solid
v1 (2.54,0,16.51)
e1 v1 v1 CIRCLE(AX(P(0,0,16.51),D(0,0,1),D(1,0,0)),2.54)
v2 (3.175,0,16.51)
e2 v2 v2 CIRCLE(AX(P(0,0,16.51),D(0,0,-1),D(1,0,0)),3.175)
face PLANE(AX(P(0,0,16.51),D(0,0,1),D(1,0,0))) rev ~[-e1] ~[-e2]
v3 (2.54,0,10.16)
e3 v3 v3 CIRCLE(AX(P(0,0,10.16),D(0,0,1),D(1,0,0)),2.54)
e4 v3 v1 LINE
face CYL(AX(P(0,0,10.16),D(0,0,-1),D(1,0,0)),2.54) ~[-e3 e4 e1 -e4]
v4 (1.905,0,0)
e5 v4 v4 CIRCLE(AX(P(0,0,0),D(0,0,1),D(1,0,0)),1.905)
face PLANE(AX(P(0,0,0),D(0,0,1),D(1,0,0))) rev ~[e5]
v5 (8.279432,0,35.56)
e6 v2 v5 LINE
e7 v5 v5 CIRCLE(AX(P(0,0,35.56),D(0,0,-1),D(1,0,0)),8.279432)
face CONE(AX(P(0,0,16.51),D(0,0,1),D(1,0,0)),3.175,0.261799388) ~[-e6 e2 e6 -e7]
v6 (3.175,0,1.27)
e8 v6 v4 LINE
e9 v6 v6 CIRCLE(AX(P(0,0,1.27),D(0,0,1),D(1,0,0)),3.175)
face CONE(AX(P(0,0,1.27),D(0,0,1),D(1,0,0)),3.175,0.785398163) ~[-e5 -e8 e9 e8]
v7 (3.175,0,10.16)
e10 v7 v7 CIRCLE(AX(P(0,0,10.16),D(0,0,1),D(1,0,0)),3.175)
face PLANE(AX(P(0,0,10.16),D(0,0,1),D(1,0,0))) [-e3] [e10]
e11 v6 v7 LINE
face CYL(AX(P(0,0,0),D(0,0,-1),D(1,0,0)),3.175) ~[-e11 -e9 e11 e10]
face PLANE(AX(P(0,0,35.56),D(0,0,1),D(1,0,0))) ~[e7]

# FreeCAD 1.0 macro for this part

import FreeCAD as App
import Part
import Sketcher
from FreeCAD import Vector
Q = App.Units.Quantity


def edges_at(feature, points):
    """Names of the edges that pass closest to the given points."""
    edges = feature.Shape.Edges
    near = lambda p: min(range(len(edges)), key=lambda i: edges[i].distToShape(Part.Vertex(*p))[0])
    return sorted({f"Edge{near(p) + 1}" for p in points})

doc = App.newDocument("Part")
body = doc.addObject("PartDesign::Body", "Body")

# Sketch on XY plane
sketch1 = body.newObject("Sketcher::SketchObject", "Sketch")
sketch1.AttachmentSupport = (doc.getObject("XY_Plane"), [""])
sketch1.MapMode = "FlatFace"
sketch1.addGeometry(Part.Circle(Vector(0, 0, 0), Vector(0, 0, 1), 3.2), False)
sketch1.addConstraint([
    Sketcher.Constraint("Coincident", 0, 3, -1, 1),
    Sketcher.Constraint("Diameter", 0, Q("0.25 in")),
])
pad1 = body.newObject("PartDesign::Pad", "Pad")
pad1.Profile = sketch1
pad1.Length = Q("0.4 in")
doc.recompute()

chamfer = body.newObject("PartDesign::Chamfer", "Chamfer")
chamfer.Base = (pad1, edges_at(pad1, [(-3.175, 0, 0)]))
chamfer.Size = Q("0.05 in")

# Sketch on XY plane
sketch2 = body.newObject("Sketcher::SketchObject", "Sketch001")
sketch2.AttachmentSupport = (doc.getObject("XY_Plane"), [""])
sketch2.MapMode = "FlatFace"
sketch2.AttachmentOffset = App.Placement(Vector(0, 0, 0.4 * 25.4), App.Rotation())
sketch2.addGeometry(Part.Circle(Vector(0, 0, 0), Vector(0, 0, 1), 2.5), False)
sketch2.addConstraint([
    Sketcher.Constraint("Coincident", 0, 3, -1, 1),
    Sketcher.Constraint("Diameter", 0, Q("0.2 in")),
])
pad2 = body.newObject("PartDesign::Pad", "Pad001")
pad2.Profile = sketch2
pad2.Length = Q("0.25 in")

# Sketch on XY plane
sketch3 = body.newObject("Sketcher::SketchObject", "Sketch002")
sketch3.AttachmentSupport = (doc.getObject("XY_Plane"), [""])
sketch3.MapMode = "FlatFace"
sketch3.AttachmentOffset = App.Placement(Vector(0, 0, 0.65 * 25.4), App.Rotation())
sketch3.addGeometry(Part.Circle(Vector(0, 0, 0), Vector(0, 0, 1), 3.2), False)
sketch3.addConstraint([
    Sketcher.Constraint("Coincident", 0, 3, -1, 1),
    Sketcher.Constraint("Diameter", 0, Q("0.25 in")),
])
pad3 = body.newObject("PartDesign::Pad", "Pad002")
pad3.Profile = sketch3
pad3.Length = Q("0.75 in")
pad3.TaperAngle = 15

doc.recompute()
